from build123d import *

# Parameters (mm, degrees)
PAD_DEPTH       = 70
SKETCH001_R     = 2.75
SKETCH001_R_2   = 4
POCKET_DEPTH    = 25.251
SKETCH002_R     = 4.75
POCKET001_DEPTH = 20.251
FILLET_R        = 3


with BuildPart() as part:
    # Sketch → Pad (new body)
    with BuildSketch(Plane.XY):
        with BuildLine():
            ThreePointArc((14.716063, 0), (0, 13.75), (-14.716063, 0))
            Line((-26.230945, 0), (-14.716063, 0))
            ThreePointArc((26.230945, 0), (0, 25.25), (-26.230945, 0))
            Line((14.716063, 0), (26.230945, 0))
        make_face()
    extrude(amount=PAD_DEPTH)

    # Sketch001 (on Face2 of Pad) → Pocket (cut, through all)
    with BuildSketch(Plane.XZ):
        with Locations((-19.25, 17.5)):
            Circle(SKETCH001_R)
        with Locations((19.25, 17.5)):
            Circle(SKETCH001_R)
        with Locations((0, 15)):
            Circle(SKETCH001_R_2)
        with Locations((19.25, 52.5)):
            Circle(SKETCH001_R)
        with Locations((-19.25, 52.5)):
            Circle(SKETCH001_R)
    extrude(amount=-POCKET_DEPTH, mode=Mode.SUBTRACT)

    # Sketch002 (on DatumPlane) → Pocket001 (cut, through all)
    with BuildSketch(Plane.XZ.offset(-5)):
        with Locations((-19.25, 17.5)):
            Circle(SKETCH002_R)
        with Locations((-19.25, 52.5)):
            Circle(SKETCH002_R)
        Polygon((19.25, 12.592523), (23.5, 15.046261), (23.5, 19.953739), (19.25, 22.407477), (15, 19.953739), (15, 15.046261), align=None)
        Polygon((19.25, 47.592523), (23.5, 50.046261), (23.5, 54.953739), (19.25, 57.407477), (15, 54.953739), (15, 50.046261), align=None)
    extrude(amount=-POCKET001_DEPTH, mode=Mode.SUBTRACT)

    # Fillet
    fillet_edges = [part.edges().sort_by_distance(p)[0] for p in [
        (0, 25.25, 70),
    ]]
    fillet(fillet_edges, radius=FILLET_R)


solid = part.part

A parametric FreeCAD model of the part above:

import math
import FreeCAD as App
import Part
import Sketcher
from FreeCAD import Vector
Q = App.Units.Quantity


def edges_at(feature, points):
    """Names of the edges that pass closest to the given points."""
    edges = feature.Shape.Edges
    near = lambda p: min(range(len(edges)), key=lambda i: edges[i].distToShape(Part.Vertex(*p))[0])
    return sorted({f"Edge{near(p) + 1}" for p in points})

doc = App.newDocument("Part")
body = doc.addObject("PartDesign::Body", "Body")

# Sketch on XY plane
sketch1 = doc.addObject("Sketcher::SketchObject", "Sketch")
body.addObject(sketch1)
sketch1.AttachmentSupport = (doc.XY_Plane, [""])
sketch1.MapMode = "FlatFace"
sketch1.addGeometry([
    Part.ArcOfCircle(Part.Circle(Vector(0, -1, 0), Vector(0, 0, 1), 15), math.radians(4), math.radians(176)),
    Part.LineSegment(Vector(15, 0, 0), Vector(26, 0, 0)),
    Part.ArcOfCircle(Part.Circle(Vector(0, -1, 0), Vector(0, 0, 1), 26), math.radians(2), math.radians(178)),
    Part.LineSegment(Vector(-26, 0, 0), Vector(-15, 0, 0)),
], False)
sketch1.addConstraint([
    Sketcher.Constraint("Coincident", 0, 1, 1, 1),
    Sketcher.Constraint("Coincident", 1, 2, 2, 1),
    Sketcher.Constraint("Coincident", 2, 2, 3, 1),
    Sketcher.Constraint("Coincident", 3, 2, 0, 2),
    Sketcher.Constraint("Horizontal", 1),
    Sketcher.Constraint("Horizontal", 3),
    Sketcher.Constraint("Coincident", 2, 3, 0, 3),
    Sketcher.Constraint("Symmetric", 1, 2, 2, 2, -1, 1),
    Sketcher.Constraint("PointOnObject", 0, 3, -2),
    Sketcher.Constraint("Radius", 0, Q("14.75 mm")),
    Sketcher.Constraint("Radius", 2, Q("26.25 mm")),
    Sketcher.Constraint("DistanceY", 0, 3, -1, 1, Q("1 mm")),
])
pad1 = doc.addObject("PartDesign::Pad", "Pad")
body.addObject(pad1)
pad1.Profile = sketch1
pad1.Length = 70

# Sketch on XZ plane
sketch2 = doc.addObject("Sketcher::SketchObject", "Sketch001")
body.addObject(sketch2)
sketch2.AttachmentSupport = (doc.XZ_Plane, [""])
sketch2.MapMode = "FlatFace"
sketch2.addGeometry([
    Part.Circle(Vector(-19.2, 17.5, 0), Vector(0, 0, 1), 2.8),  # 0
    Part.Circle(Vector(19.2, 17.5, 0), Vector(0, 0, 1), 2.8),  # 1
    Part.Circle(Vector(0, 15, 0), Vector(0, 0, 1), 4),  # 2
    Part.Circle(Vector(19.2, 52.5, 0), Vector(0, 0, 1), 2.8),  # 3
    Part.Circle(Vector(-19.2, 52.5, 0), Vector(0, 0, 1), 2.8),  # 4
], False)
sketch2.addConstraint([
    Sketcher.Constraint("Equal", 0, 1),
    Sketcher.Constraint("Equal", 1, 3),
    Sketcher.Constraint("Equal", 3, 4),
    Sketcher.Constraint("Symmetric", 0, 3, 1, 3, -2),
    Sketcher.Constraint("Symmetric", 3, 3, 4, 3, -2),
    Sketcher.Constraint("PointOnObject", 2, 3, -2),
    Sketcher.Constraint("Vertical", 1, 3, 3, 3),
    Sketcher.Constraint("Diameter", 2, Q("8 mm")),
    Sketcher.Constraint("Diameter", 0, Q("5.5 mm")),
    Sketcher.Constraint("DistanceY", -1, 1, 2, 3, Q("15 mm")),
    Sketcher.Constraint("DistanceY", 1, 3, 3, 3, Q("35 mm")),
    Sketcher.Constraint("DistanceY", -1, 1, 0, 3, Q("17.5 mm")),
    Sketcher.Constraint("DistanceX", 0, 3, 1, 3, Q("38.5 mm")),
])
pocket1 = doc.addObject("PartDesign::Pocket", "Pocket")
body.addObject(pocket1)
pocket1.Profile = sketch2
pocket1.Type = "ThroughAll"

# Sketch on XZ plane
sketch3 = doc.addObject("Sketcher::SketchObject", "Sketch002")
body.addObject(sketch3)
sketch3.AttachmentSupport = (doc.XZ_Plane, [""])
sketch3.MapMode = "FlatFace"
sketch3.AttachmentOffset = App.Placement(Vector(0, 0, -5), App.Rotation())
sketch3.addGeometry([
    Part.Circle(Vector(-19.2, 17.5, 0), Vector(0, 0, 1), 4.8),  # 0
    Part.Circle(Vector(-19.2, 52.5, 0), Vector(0, 0, 1), 4.8),  # 1
    Part.LineSegment(Vector(19.2, 12.6, 0), Vector(23.5, 15, 0)),  # 2
    Part.LineSegment(Vector(23.5, 15, 0), Vector(23.5, 20, 0)),  # 3
    Part.LineSegment(Vector(23.5, 20, 0), Vector(19.2, 22.4, 0)),  # 4
    Part.LineSegment(Vector(19.2, 22.4, 0), Vector(15, 20, 0)),  # 5
    Part.LineSegment(Vector(15, 20, 0), Vector(15, 15, 0)),  # 6
    Part.LineSegment(Vector(15, 15, 0), Vector(19.2, 12.6, 0)),  # 7
    Part.LineSegment(Vector(19.2, 47.6, 0), Vector(23.5, 50, 0)),  # 8
    Part.LineSegment(Vector(23.5, 50, 0), Vector(23.5, 55, 0)),  # 9
    Part.LineSegment(Vector(23.5, 55, 0), Vector(19.2, 57.4, 0)),  # 10
    Part.LineSegment(Vector(19.2, 57.4, 0), Vector(15, 55, 0)),  # 11
    Part.LineSegment(Vector(15, 55, 0), Vector(15, 50, 0)),  # 12
    Part.LineSegment(Vector(15, 50, 0), Vector(19.2, 47.6, 0)),  # 13
], False)
sketch3.addConstraint([
    Sketcher.Constraint("Coincident", 2, 2, 3, 1),
    Sketcher.Constraint("Coincident", 3, 2, 4, 1),
    Sketcher.Constraint("Coincident", 4, 2, 5, 1),
    Sketcher.Constraint("Coincident", 5, 2, 6, 1),
    Sketcher.Constraint("Coincident", 6, 2, 7, 1),
    Sketcher.Constraint("Coincident", 7, 2, 2, 1),
    Sketcher.Constraint("Coincident", 8, 2, 9, 1),
    Sketcher.Constraint("Coincident", 9, 2, 10, 1),
    Sketcher.Constraint("Coincident", 10, 2, 11, 1),
    Sketcher.Constraint("Coincident", 11, 2, 12, 1),
    Sketcher.Constraint("Coincident", 12, 2, 13, 1),
    Sketcher.Constraint("Coincident", 13, 2, 8, 1),
    Sketcher.Constraint("Vertical", 3),
    Sketcher.Constraint("Vertical", 6),
    Sketcher.Constraint("Vertical", 9),
    Sketcher.Constraint("Vertical", 12),
    Sketcher.Constraint("Equal", 0, 1),
    Sketcher.Constraint("Parallel", 2, 5),
    Sketcher.Constraint("Parallel", 4, 7),
    Sketcher.Constraint("Parallel", 5, 8),
    Sketcher.Constraint("Parallel", 7, 10),
    Sketcher.Constraint("Parallel", 8, 11),
    Sketcher.Constraint("Parallel", 10, 13),
    Sketcher.Constraint("Horizontal", 3, 2, 5, 2),
    Sketcher.Constraint("Horizontal", 2, 2, 6, 2),
    Sketcher.Constraint("Horizontal", 9, 2, 11, 2),
    Sketcher.Constraint("Horizontal", 8, 2, 12, 2),
    Sketcher.Constraint("Vertical", 0, 3, 1, 3),
    Sketcher.Constraint("Vertical", 4, 2, 7, 2),
    Sketcher.Constraint("Vertical", 3, 2, 8, 2),
    Sketcher.Constraint("Vertical", 7, 2, 10, 2),
    Sketcher.Constraint("Equal", 6, 9),
    Sketcher.Constraint("Diameter", 0, Q("9.5 mm")),
    Sketcher.Constraint("Angle", 2, Q("29.999993 deg")),
    Sketcher.Constraint("DistanceX", -1, 1, 5, 2, Q("15 mm")),
    Sketcher.Constraint("DistanceY", 0, 3, 1, 3, Q("35 mm")),
    Sketcher.Constraint("DistanceY", 2, 2, 8, 2, Q("35 mm")),
    Sketcher.Constraint("DistanceY", -1, 1, 0, 3, Q("17.5 mm")),
    Sketcher.Constraint("DistanceX", -1, 1, 2, 2, Q("23.5 mm")),
    Sketcher.Constraint("DistanceX", 0, 3, 4, 2, Q("38.5 mm")),
    Sketcher.Constraint("DistanceY", 3, 1, 3, 2, Q("4.907478 mm")),
    Sketcher.Constraint("DistanceY", -1, 1, 2, 2, Q("15.046261 mm")),
])
pocket2 = doc.addObject("PartDesign::Pocket", "Pocket001")
body.addObject(pocket2)
pocket2.Profile = sketch3
pocket2.Type = "ThroughAll"
doc.recompute()

fillet = doc.addObject("PartDesign::Fillet", "Fillet")
body.addObject(fillet)
fillet.Base = (pocket2, edges_at(pocket2, [(0, 25.25, 70)]))
fillet.Radius = 3

doc.recompute()
